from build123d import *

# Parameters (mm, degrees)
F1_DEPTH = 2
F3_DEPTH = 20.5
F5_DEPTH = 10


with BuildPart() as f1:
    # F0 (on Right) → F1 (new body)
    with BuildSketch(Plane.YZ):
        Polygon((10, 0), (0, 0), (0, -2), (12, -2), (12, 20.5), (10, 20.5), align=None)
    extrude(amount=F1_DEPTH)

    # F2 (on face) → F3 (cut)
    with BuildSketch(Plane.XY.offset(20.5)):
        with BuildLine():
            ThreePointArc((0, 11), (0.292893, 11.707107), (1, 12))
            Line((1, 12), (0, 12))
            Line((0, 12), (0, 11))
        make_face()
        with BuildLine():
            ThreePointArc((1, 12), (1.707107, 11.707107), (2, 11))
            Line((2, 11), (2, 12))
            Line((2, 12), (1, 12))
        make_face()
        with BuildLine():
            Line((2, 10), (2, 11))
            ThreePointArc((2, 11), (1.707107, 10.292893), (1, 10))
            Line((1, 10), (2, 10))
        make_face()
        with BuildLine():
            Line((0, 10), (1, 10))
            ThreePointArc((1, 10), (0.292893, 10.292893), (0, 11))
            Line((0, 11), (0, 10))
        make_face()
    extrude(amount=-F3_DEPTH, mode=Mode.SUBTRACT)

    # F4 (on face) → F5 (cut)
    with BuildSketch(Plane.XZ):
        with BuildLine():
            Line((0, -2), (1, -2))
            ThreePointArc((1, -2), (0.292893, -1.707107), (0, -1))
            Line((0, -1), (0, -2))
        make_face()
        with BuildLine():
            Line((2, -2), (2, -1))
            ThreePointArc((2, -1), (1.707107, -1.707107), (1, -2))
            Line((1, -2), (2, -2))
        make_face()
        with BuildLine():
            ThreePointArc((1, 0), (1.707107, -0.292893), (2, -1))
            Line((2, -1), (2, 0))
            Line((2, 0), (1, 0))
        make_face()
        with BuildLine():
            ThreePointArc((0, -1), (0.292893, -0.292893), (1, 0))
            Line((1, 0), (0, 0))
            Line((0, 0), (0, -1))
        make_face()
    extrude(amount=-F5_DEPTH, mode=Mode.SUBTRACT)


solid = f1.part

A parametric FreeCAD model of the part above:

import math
import FreeCAD as App
import Part
import Sketcher
Q = App.Units.Quantity


def add_polygon(sketch, points):
    """Adds a closed chain of lines whose ends are joined by coincident constraints."""
    first, n = sketch.GeometryCount, len(points)
    for a, b in zip(points, points[1:] + points[:1]):
        sketch.addGeometry(Part.LineSegment(App.Vector(*a, 0), App.Vector(*b, 0)), False)
    for i in range(n):
        sketch.addConstraint(Sketcher.Constraint("Coincident", first + i, 2, first + (i + 1) % n, 1))

doc = App.newDocument("Part")
body = doc.addObject("PartDesign::Body", "Body")

sketch1 = body.newObject("Sketcher::SketchObject", "Sketch")
sketch1.AttachmentSupport = (doc.getObject("YZ_Plane"), [""])
sketch1.MapMode = "FlatFace"
add_polygon(sketch1, [(10, 0), (0, 0), (0, -2), (12, -2), (12, 20.5), (10, 20.5)])
sketch1.addConstraint([
    Sketcher.Constraint("Horizontal", 0),
    Sketcher.Constraint("Vertical", 1),
    Sketcher.Constraint("Horizontal", 2),
    Sketcher.Constraint("Vertical", 3),
    Sketcher.Constraint("Horizontal", 4),
    Sketcher.Constraint("Vertical", 5),
    Sketcher.Constraint("Coincident", 0, 2, -1, 1),
    Sketcher.Constraint("Equal", 4, 1),
    Sketcher.Constraint("DistanceX", 0, 2, 0, 1, Q("10 mm")),
    Sketcher.Constraint("DistanceX", 2, 1, 2, 2, Q("12 mm")),
    Sketcher.Constraint("DistanceY", 3, 1, 3, 2, Q("22.5 mm")),
])
pad1 = body.newObject("PartDesign::Pad", "Pad")
pad1.Profile = sketch1
pad1.Length = 2

sketch2 = body.newObject("Sketcher::SketchObject", "Sketch001")
sketch2.AttachmentSupport = (doc.getObject("XY_Plane"), [""])
sketch2.MapMode = "FlatFace"
sketch2.AttachmentOffset = App.Placement(App.Vector(0, 0, 20.5), App.Rotation())
sketch2.addGeometry([
    Part.ArcOfCircle(Part.Circle(App.Vector(1, 11, 0), App.Vector(0, 0, 1), 1), math.radians(90), math.radians(180)),
    Part.LineSegment(App.Vector(1, 12, 0), App.Vector(0, 12, 0)),
    Part.LineSegment(App.Vector(0, 12, 0), App.Vector(0, 11, 0)),
    Part.ArcOfCircle(Part.Circle(App.Vector(1, 11, 0), App.Vector(0, 0, 1), 1), math.radians(0), math.radians(90)),
    Part.LineSegment(App.Vector(2, 11, 0), App.Vector(2, 12, 0)),
    Part.LineSegment(App.Vector(2, 12, 0), App.Vector(1, 12, 0)),
    Part.LineSegment(App.Vector(2, 10, 0), App.Vector(2, 11, 0)),
    Part.ArcOfCircle(Part.Circle(App.Vector(1, 11, 0), App.Vector(0, 0, 1), 1), math.radians(-90), math.radians(0)),
    Part.LineSegment(App.Vector(1, 10, 0), App.Vector(2, 10, 0)),
    Part.LineSegment(App.Vector(0, 10, 0), App.Vector(1, 10, 0)),
    Part.ArcOfCircle(Part.Circle(App.Vector(1, 11, 0), App.Vector(0, 0, 1), 1), math.radians(180), math.radians(270)),
    Part.LineSegment(App.Vector(0, 11, 0), App.Vector(0, 10, 0)),
], False)
sketch2.addConstraint([
    Sketcher.Constraint("Tangent", 0, 1, 1, 1),
    Sketcher.Constraint("Coincident", 1, 2, 2, 1),
    Sketcher.Constraint("Tangent", 2, 2, 0, 2),
    Sketcher.Constraint("Tangent", 3, 1, 4, 1),
    Sketcher.Constraint("Coincident", 4, 2, 5, 1),
    Sketcher.Constraint("Tangent", 5, 2, 3, 2),
    Sketcher.Constraint("Tangent", 6, 2, 7, 2),
    Sketcher.Constraint("Tangent", 7, 1, 8, 1),
    Sketcher.Constraint("Coincident", 8, 2, 6, 1),
    Sketcher.Constraint("Tangent", 9, 2, 10, 2),
    Sketcher.Constraint("Tangent", 10, 1, 11, 1),
    Sketcher.Constraint("Coincident", 11, 2, 9, 1),
    Sketcher.Constraint("Horizontal", 1),
    Sketcher.Constraint("Vertical", 2),
    Sketcher.Constraint("Vertical", 4),
    Sketcher.Constraint("Horizontal", 5),
    Sketcher.Constraint("Vertical", 6),
    Sketcher.Constraint("Horizontal", 8),
    Sketcher.Constraint("Horizontal", 9),
    Sketcher.Constraint("Vertical", 11),
    Sketcher.Constraint("Coincident", 3, 3, 0, 3),
    Sketcher.Constraint("Coincident", 7, 3, 0, 3),
    Sketcher.Constraint("Coincident", 10, 3, 0, 3),
    Sketcher.Constraint("Equal", 0, 3),
    Sketcher.Constraint("Equal", 3, 7),
    Sketcher.Constraint("Equal", 7, 10),
    Sketcher.Constraint("PointOnObject", 1, 2, -2),
    Sketcher.Constraint("Radius", 0, Q("0.999999 mm")),
    Sketcher.Constraint("DistanceY", -1, 1, 0, 3, Q("11.000001 mm")),
])
pocket1 = body.newObject("PartDesign::Pocket", "Pocket")
pocket1.Profile = sketch2
pocket1.Length = 20.5

sketch3 = body.newObject("Sketcher::SketchObject", "Sketch002")
sketch3.AttachmentSupport = (doc.getObject("XZ_Plane"), [""])
sketch3.MapMode = "FlatFace"
sketch3.addGeometry([
    Part.LineSegment(App.Vector(0, -2, 0), App.Vector(1, -2, 0)),
    Part.ArcOfCircle(Part.Circle(App.Vector(1, -1, 0), App.Vector(0, 0, 1), 1), math.radians(180), math.radians(270)),
    Part.LineSegment(App.Vector(0, -1, 0), App.Vector(0, -2, 0)),
    Part.LineSegment(App.Vector(2, -2, 0), App.Vector(2, -1, 0)),
    Part.ArcOfCircle(Part.Circle(App.Vector(1, -1, 0), App.Vector(0, 0, 1), 1), math.radians(-90), math.radians(0)),
    Part.LineSegment(App.Vector(1, -2, 0), App.Vector(2, -2, 0)),
    Part.ArcOfCircle(Part.Circle(App.Vector(1, -1, 0), App.Vector(0, 0, 1), 1), math.radians(0), math.radians(90)),
    Part.LineSegment(App.Vector(2, -1, 0), App.Vector(2, 0, 0)),
    Part.LineSegment(App.Vector(2, 0, 0), App.Vector(1, 0, 0)),
    Part.ArcOfCircle(Part.Circle(App.Vector(1, -1, 0), App.Vector(0, 0, 1), 1), math.radians(90), math.radians(180)),
    Part.LineSegment(App.Vector(1, 0, 0), App.Vector(0, 0, 0)),
    Part.LineSegment(App.Vector(0, 0, 0), App.Vector(0, -1, 0)),
], False)
sketch3.addConstraint([
    Sketcher.Constraint("Tangent", 0, 2, 1, 2),
    Sketcher.Constraint("Tangent", 1, 1, 2, 1),
    Sketcher.Constraint("Coincident", 2, 2, 0, 1),
    Sketcher.Constraint("Tangent", 3, 2, 4, 2),
    Sketcher.Constraint("Tangent", 4, 1, 5, 1),
    Sketcher.Constraint("Coincident", 5, 2, 3, 1),
    Sketcher.Constraint("Tangent", 6, 1, 7, 1),
    Sketcher.Constraint("Coincident", 7, 2, 8, 1),
    Sketcher.Constraint("Tangent", 8, 2, 6, 2),
    Sketcher.Constraint("Tangent", 9, 1, 10, 1),
    Sketcher.Constraint("Coincident", 10, 2, 11, 1),
    Sketcher.Constraint("Tangent", 11, 2, 9, 2),
    Sketcher.Constraint("Horizontal", 0),
    Sketcher.Constraint("Vertical", 2),
    Sketcher.Constraint("Vertical", 3),
    Sketcher.Constraint("Horizontal", 5),
    Sketcher.Constraint("Vertical", 7),
    Sketcher.Constraint("Horizontal", 8),
    Sketcher.Constraint("Horizontal", 10),
    Sketcher.Constraint("Vertical", 11),
    Sketcher.Constraint("Coincident", 10, 2, -1, 1),
    Sketcher.Constraint("Coincident", 4, 3, 1, 3),
    Sketcher.Constraint("Coincident", 6, 3, 1, 3),
    Sketcher.Constraint("Coincident", 9, 3, 1, 3),
    Sketcher.Constraint("Equal", 1, 4),
    Sketcher.Constraint("Equal", 4, 6),
    Sketcher.Constraint("Equal", 6, 9),
    Sketcher.Constraint("Radius", 1, Q("0.999999 mm")),
])
pocket2 = body.newObject("PartDesign::Pocket", "Pocket001")
pocket2.Profile = sketch3
pocket2.Length = 10

doc.recompute()
